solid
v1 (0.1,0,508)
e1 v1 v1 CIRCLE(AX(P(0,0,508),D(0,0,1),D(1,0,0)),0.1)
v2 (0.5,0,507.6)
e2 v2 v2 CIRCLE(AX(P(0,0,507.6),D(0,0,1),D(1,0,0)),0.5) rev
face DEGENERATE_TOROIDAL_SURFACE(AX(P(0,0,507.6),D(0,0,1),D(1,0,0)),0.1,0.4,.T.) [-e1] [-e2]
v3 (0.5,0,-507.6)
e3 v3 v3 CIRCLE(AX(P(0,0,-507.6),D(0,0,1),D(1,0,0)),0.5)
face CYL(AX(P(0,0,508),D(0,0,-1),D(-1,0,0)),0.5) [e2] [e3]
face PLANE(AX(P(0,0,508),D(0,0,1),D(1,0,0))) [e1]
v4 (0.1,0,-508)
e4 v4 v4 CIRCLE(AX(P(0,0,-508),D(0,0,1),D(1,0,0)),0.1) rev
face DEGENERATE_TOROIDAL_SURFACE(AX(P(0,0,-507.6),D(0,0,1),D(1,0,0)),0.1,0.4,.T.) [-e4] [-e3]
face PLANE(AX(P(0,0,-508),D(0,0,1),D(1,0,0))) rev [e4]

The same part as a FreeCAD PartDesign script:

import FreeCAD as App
import Part
import Sketcher
from FreeCAD import Vector


def edges_at(feature, points):
    """Names of the edges that pass closest to the given points."""
    edges = feature.Shape.Edges
    near = lambda p: min(range(len(edges)), key=lambda i: edges[i].distToShape(Part.Vertex(*p))[0])
    return sorted({f"Edge{near(p) + 1}" for p in points})

doc = App.newDocument("Part")
body = doc.addObject("PartDesign::Body", "Body")

sketch1 = body.newObject("Sketcher::SketchObject", "Sketch")
sketch1.AttachmentSupport = (doc.getObject("XY_Plane"), [""])
sketch1.MapMode = "FlatFace"
sketch1.addGeometry(Part.Circle(Vector(0, 0, 0), Vector(0, 0, 1), 0.5), False)
sketch1.addConstraint(Sketcher.Constraint("Coincident", 0, 3, -1, 1))
sketch1.addConstraint(Sketcher.Constraint("Diameter", 0, 1.0))
pad1 = body.newObject("PartDesign::Pad", "Pad")
pad1.Profile = sketch1
pad1.Length = 1016
pad1.Midplane = True
doc.recompute()

fillet = body.newObject("PartDesign::Fillet", "Fillet")
fillet.Base = (pad1, edges_at(pad1, [(-0.5, 0, -508), (-0.5, 0, 508)]))
fillet.Radius = 0.4

doc.recompute()
